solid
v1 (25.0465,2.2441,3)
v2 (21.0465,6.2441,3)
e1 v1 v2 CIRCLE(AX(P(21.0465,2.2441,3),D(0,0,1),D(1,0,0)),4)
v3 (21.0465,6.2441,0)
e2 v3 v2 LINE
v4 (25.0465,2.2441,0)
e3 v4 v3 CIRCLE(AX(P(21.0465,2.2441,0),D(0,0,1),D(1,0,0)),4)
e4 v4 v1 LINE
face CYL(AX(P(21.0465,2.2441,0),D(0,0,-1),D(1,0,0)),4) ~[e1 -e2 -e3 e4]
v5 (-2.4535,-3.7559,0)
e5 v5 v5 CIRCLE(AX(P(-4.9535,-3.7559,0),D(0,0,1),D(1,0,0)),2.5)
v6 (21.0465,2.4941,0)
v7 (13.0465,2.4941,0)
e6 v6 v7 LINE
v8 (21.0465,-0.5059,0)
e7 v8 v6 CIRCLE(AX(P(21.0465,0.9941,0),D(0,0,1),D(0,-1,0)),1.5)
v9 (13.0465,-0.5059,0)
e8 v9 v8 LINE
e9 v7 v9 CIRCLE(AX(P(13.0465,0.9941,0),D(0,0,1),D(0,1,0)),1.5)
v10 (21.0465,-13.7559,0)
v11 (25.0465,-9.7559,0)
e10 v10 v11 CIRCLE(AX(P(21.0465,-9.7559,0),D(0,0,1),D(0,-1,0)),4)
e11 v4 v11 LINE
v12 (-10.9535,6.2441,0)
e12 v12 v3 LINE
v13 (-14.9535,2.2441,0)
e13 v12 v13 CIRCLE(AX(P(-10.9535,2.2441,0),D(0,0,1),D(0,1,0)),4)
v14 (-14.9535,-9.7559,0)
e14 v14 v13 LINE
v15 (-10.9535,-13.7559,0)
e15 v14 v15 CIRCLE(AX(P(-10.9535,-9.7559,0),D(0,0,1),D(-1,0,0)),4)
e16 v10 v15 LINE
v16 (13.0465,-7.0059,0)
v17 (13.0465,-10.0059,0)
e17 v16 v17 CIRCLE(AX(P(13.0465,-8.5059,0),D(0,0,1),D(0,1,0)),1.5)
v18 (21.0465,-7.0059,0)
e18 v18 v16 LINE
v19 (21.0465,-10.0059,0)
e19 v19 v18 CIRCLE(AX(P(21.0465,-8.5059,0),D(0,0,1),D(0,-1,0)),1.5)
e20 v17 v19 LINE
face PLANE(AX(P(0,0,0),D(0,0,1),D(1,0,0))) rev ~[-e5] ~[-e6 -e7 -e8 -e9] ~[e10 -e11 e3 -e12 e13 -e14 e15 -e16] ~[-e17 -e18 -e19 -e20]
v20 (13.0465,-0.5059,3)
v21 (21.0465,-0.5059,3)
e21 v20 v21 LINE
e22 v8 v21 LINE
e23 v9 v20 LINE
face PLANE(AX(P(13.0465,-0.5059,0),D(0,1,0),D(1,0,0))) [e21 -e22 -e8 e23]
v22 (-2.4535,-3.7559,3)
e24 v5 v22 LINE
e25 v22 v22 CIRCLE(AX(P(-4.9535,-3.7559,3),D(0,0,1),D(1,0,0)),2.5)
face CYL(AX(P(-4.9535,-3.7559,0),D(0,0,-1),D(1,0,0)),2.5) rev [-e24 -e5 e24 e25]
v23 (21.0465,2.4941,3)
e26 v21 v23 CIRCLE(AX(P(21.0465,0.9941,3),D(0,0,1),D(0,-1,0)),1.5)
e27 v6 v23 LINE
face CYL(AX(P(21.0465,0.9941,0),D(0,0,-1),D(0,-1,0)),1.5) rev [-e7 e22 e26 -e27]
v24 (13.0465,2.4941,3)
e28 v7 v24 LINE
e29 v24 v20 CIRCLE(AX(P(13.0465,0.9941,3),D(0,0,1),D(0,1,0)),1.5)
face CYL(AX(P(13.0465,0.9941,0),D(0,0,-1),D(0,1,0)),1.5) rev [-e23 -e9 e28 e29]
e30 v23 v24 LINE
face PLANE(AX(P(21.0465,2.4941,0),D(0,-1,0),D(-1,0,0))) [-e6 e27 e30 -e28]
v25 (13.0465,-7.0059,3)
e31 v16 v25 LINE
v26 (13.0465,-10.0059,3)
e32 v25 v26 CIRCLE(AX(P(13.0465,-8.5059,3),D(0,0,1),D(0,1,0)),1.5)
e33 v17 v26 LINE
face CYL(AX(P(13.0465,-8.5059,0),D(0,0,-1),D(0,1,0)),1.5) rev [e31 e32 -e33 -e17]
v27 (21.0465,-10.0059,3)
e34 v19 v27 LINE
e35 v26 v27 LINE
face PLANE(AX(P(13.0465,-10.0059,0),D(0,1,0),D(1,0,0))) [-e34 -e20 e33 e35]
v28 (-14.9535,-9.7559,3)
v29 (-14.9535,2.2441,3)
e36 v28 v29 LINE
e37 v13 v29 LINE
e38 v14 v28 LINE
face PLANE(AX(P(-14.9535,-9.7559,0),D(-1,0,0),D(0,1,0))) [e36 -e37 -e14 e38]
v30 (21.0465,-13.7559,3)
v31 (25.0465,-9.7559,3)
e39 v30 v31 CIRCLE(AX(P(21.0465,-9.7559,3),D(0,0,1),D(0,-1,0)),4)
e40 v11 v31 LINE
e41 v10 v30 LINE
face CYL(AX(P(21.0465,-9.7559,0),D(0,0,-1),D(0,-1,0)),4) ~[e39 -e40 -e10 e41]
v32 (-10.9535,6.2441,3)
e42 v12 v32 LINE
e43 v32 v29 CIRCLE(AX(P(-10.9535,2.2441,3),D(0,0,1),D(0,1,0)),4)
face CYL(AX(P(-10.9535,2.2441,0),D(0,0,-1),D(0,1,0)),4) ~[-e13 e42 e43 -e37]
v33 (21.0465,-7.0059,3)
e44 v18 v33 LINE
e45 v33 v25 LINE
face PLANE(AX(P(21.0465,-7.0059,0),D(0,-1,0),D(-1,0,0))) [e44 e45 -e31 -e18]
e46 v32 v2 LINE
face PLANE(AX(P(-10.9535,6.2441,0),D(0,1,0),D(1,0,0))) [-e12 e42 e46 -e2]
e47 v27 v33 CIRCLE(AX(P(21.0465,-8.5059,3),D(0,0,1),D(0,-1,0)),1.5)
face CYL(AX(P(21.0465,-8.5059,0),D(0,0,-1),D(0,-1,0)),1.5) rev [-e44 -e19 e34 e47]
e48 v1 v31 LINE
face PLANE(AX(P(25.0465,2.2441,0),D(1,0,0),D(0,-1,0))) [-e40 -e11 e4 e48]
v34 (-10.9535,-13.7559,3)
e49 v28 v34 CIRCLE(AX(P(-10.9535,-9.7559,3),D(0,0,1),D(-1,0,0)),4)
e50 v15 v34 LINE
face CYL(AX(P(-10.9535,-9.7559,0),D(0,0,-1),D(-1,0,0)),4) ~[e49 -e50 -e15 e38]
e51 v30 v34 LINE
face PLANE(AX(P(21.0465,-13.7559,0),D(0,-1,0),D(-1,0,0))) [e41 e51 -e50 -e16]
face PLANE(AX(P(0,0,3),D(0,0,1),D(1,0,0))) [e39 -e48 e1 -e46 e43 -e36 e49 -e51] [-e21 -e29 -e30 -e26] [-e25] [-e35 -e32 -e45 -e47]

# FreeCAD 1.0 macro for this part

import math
import FreeCAD as App
import Part
import Sketcher
from FreeCAD import Vector

doc = App.newDocument("Part")
body = doc.addObject("PartDesign::Body", "Body")

# Sketch on XY plane
sketch1 = doc.addObject("Sketcher::SketchObject", "Sketch")
body.addObject(sketch1)
sketch1.AttachmentSupport = (doc.XY_Plane, [""])
sketch1.MapMode = "FlatFace"
sketch1.addGeometry([
    Part.LineSegment(Vector(21.0465, 6.2441, 0), Vector(-10.9535, 6.2441, 0)),  # 0
    Part.ArcOfCircle(Part.Circle(Vector(-10.9535, 2.2441, 0), Vector(0, 0, 1), 4), math.radians(90), math.radians(180)),  # 1
    Part.LineSegment(Vector(-14.9535, 2.2441, 0), Vector(-14.9535, -9.7559, 0)),  # 2
    Part.ArcOfCircle(Part.Circle(Vector(-10.9535, -9.7559, 0), Vector(0, 0, 1), 4), math.radians(180), math.radians(270)),  # 3
    Part.LineSegment(Vector(-10.9535, -13.7559, 0), Vector(21.0465, -13.7559, 0)),  # 4
    Part.ArcOfCircle(Part.Circle(Vector(21.0465, -9.7559, 0), Vector(0, 0, 1), 4), math.radians(-90), math.radians(0)),  # 5
    Part.LineSegment(Vector(25.0465, -9.7559, 0), Vector(25.0465, 2.2441, 0)),  # 6
    Part.ArcOfCircle(Part.Circle(Vector(21.0465, 2.2441, 0), Vector(0, 0, 1), 4), math.radians(0), math.radians(90)),  # 7
    Part.LineSegment(Vector(21.0465, -10.0059, 0), Vector(13.0465, -10.0059, 0)),  # 8
    Part.ArcOfCircle(Part.Circle(Vector(13.0465, -8.5059, 0), Vector(0, 0, 1), 1.5), math.radians(90), math.radians(270)),  # 9
    Part.LineSegment(Vector(13.0465, -7.0059, 0), Vector(21.0465, -7.0059, 0)),  # 10
    Part.ArcOfCircle(Part.Circle(Vector(21.0465, -8.5059, 0), Vector(0, 0, 1), 1.5), math.radians(-90), math.radians(90)),  # 11
    Part.Circle(Vector(-4.9535, -3.7559, 0), Vector(0, 0, 1), 2.5),  # 12
    Part.LineSegment(Vector(21.0465, -0.5059, 0), Vector(13.0465, -0.5059, 0)),  # 13
    Part.ArcOfCircle(Part.Circle(Vector(13.0465, 0.9941, 0), Vector(0, 0, 1), 1.5), math.radians(90), math.radians(270)),  # 14
    Part.LineSegment(Vector(13.0465, 2.4941, 0), Vector(21.0465, 2.4941, 0)),  # 15
    Part.ArcOfCircle(Part.Circle(Vector(21.0465, 0.9941, 0), Vector(0, 0, 1), 1.5), math.radians(-90), math.radians(90)),  # 16
], False)
sketch1.addConstraint([
    Sketcher.Constraint("Tangent", 0, 2, 1, 1),
    Sketcher.Constraint("Tangent", 1, 2, 2, 1),
    Sketcher.Constraint("Tangent", 2, 2, 3, 1),
    Sketcher.Constraint("Tangent", 3, 2, 4, 1),
    Sketcher.Constraint("Tangent", 4, 2, 5, 1),
    Sketcher.Constraint("Tangent", 5, 2, 6, 1),
    Sketcher.Constraint("Tangent", 6, 2, 7, 1),
    Sketcher.Constraint("Tangent", 7, 2, 0, 1),
    Sketcher.Constraint("Tangent", 8, 2, 9, 2),
    Sketcher.Constraint("Tangent", 9, 1, 10, 1),
    Sketcher.Constraint("Tangent", 10, 2, 11, 2),
    Sketcher.Constraint("Tangent", 11, 1, 8, 1),
    Sketcher.Constraint("Tangent", 13, 2, 14, 2),
    Sketcher.Constraint("Tangent", 14, 1, 15, 1),
    Sketcher.Constraint("Tangent", 15, 2, 16, 2),
    Sketcher.Constraint("Tangent", 16, 1, 13, 1),
    Sketcher.Constraint("Horizontal", 0),
    Sketcher.Constraint("Vertical", 2),
    Sketcher.Constraint("Horizontal", 4),
    Sketcher.Constraint("Vertical", 6),
    Sketcher.Constraint("Horizontal", 8),
    Sketcher.Constraint("Horizontal", 10),
    Sketcher.Constraint("Horizontal", 13),
    Sketcher.Constraint("Horizontal", 15),
    Sketcher.Constraint("Equal", 1, 3),
    Sketcher.Constraint("Equal", 3, 5),
    Sketcher.Constraint("Equal", 5, 7),
    Sketcher.Constraint("Equal", 11, 14),
    Sketcher.Constraint("Vertical", 7, 3, 11, 3),
    Sketcher.Constraint("Vertical", 9, 3, 14, 3),
    Sketcher.Constraint("Vertical", 11, 3, 16, 3),
    Sketcher.Constraint("Diameter", 12, 5.0),
    Sketcher.Constraint("Radius", 1, 4.0),
    Sketcher.Constraint("Radius", 9, 1.5),
    Sketcher.Constraint("DistanceX", 8, 2, 8, 1, 8.0),
    Sketcher.Constraint("DistanceY", 12, 3, 0, 2, 10.0),
    Sketcher.Constraint("DistanceX", 1, 2, 12, 3, 10.0),
    Sketcher.Constraint("DistanceY", 3, 2, 12, 3, 10.0),
    Sketcher.Constraint("DistanceY", 9, 1, 14, 3, 8.0),
    Sketcher.Constraint("DistanceX", 0, 2, 0, 1, 32.0),
    Sketcher.Constraint("DistanceY", 14, 3, 0, 2, 5.25),
    Sketcher.Constraint("DistanceY", -1, 1, 1, 3, 2.244),
    Sketcher.Constraint("DistanceX", 1, 3, -1, 1, 10.9535),
])
pad1 = doc.addObject("PartDesign::Pad", "Pad")
body.addObject(pad1)
pad1.Profile = sketch1
pad1.Length = 3

doc.recompute()
